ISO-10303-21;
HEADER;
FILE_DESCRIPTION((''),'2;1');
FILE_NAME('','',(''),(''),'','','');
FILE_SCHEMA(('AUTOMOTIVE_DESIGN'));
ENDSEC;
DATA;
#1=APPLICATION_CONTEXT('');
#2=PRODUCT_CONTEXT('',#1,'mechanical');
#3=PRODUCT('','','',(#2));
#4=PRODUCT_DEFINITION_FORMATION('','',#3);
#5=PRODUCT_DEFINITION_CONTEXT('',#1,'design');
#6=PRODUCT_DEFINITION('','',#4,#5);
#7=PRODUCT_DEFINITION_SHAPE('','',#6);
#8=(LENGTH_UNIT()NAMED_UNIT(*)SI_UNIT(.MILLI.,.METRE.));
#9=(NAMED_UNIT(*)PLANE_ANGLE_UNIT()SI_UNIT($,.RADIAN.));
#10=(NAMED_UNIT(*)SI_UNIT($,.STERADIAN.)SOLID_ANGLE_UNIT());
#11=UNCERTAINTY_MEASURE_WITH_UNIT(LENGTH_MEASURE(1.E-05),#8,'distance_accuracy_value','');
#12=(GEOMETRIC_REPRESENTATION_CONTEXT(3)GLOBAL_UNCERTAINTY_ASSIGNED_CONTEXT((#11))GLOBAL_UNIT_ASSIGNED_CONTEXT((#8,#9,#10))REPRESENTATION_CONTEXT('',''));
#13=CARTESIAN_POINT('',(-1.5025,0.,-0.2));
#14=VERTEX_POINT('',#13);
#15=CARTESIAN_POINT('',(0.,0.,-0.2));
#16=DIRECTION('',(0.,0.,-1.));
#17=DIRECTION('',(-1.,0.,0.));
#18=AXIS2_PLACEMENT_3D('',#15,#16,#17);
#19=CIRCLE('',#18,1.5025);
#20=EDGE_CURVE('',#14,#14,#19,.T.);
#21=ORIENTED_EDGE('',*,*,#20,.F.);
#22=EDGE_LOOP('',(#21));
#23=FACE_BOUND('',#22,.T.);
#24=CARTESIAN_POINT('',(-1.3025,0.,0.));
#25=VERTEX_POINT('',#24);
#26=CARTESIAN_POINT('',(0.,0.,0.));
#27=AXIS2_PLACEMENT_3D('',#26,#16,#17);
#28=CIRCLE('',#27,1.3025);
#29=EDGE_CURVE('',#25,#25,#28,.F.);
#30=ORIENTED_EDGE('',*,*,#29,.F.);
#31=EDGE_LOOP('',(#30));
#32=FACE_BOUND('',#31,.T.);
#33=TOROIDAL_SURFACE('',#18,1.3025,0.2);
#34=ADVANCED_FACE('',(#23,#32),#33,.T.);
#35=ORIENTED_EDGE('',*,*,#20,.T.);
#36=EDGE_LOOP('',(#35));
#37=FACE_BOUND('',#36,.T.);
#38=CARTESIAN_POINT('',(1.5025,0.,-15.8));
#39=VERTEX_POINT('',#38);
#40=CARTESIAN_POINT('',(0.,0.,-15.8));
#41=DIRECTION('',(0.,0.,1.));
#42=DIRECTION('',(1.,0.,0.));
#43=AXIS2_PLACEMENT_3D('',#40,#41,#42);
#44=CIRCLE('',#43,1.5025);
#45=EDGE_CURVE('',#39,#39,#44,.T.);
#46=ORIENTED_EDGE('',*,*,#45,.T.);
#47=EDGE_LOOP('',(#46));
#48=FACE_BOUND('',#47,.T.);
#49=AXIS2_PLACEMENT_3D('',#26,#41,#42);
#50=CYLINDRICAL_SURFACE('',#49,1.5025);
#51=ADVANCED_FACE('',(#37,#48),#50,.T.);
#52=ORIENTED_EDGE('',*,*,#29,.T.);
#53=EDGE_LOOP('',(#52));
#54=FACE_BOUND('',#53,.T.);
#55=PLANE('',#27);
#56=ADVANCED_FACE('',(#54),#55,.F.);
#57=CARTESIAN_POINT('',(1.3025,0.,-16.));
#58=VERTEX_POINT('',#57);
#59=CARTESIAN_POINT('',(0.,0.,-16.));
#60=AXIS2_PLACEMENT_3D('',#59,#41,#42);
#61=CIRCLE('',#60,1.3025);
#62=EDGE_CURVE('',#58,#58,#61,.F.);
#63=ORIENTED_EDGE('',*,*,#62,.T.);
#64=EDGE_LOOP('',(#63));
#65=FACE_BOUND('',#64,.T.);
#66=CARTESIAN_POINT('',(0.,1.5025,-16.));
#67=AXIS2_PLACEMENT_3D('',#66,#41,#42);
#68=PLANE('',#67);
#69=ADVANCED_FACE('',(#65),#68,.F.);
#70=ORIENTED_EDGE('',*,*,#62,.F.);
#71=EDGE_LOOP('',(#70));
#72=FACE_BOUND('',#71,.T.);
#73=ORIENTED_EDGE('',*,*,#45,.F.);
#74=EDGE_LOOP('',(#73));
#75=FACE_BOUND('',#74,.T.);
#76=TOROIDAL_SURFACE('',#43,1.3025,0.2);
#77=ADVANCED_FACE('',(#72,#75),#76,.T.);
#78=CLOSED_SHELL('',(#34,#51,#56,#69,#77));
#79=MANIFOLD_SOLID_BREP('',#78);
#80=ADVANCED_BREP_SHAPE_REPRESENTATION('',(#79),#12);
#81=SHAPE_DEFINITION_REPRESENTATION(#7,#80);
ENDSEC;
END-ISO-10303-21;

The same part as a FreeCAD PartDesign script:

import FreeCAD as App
import Part
import Sketcher
from FreeCAD import Vector


def edges_at(feature, points):
    """Names of the edges that pass closest to the given points."""
    edges = feature.Shape.Edges
    near = lambda p: min(range(len(edges)), key=lambda i: edges[i].distToShape(Part.Vertex(*p))[0])
    return sorted({f"Edge{near(p) + 1}" for p in points})


def add_polygon(sketch, points):
    """Adds a closed chain of lines whose ends are joined by coincident constraints."""
    first, n = sketch.GeometryCount, len(points)
    for a, b in zip(points, points[1:] + points[:1]):
        sketch.addGeometry(Part.LineSegment(App.Vector(*a, 0), App.Vector(*b, 0)), False)
    for i in range(n):
        sketch.addConstraint(Sketcher.Constraint("Coincident", first + i, 2, first + (i + 1) % n, 1))

doc = App.newDocument("Part")
body = doc.addObject("PartDesign::Body", "Body")

# Sketch on YZ plane
sketch1 = doc.addObject("Sketcher::SketchObject", "Sketch")
body.addObject(sketch1)
sketch1.AttachmentSupport = (doc.YZ_Plane, [""])
sketch1.MapMode = "FlatFace"
add_polygon(sketch1, [(1.5, 0), (0, 0), (0, -16), (1.5, -16)])  # lines 0-3
sketch1.addConstraint(Sketcher.Constraint("Horizontal", 0))
sketch1.addConstraint(Sketcher.Constraint("Vertical", 1))
sketch1.addConstraint(Sketcher.Constraint("Horizontal", 2))
sketch1.addConstraint(Sketcher.Constraint("Vertical", 3))
sketch1.addConstraint(Sketcher.Constraint("Coincident", 0, 2, -1, 1))
sketch1.addConstraint(Sketcher.Constraint("DistanceY", 1, 2, 1, 1, 16.0))
sketch1.addConstraint(Sketcher.Constraint("DistanceX", 0, 2, 0, 1, 1.5025))
revolution = doc.addObject("PartDesign::Revolution", "Revolution")
body.addObject(revolution)
revolution.Profile = sketch1
revolution.ReferenceAxis = (sketch1, ["V_Axis"])
revolution.Angle = 360
doc.recompute()

fillet = doc.addObject("PartDesign::Fillet", "Fillet")
body.addObject(fillet)
fillet.Base = (revolution, edges_at(revolution, [(-1.502, 0, -16)]))
fillet.Radius = 0.2
doc.recompute()

fillet2 = doc.addObject("PartDesign::Fillet", "Fillet001")
body.addObject(fillet2)
fillet2.Base = (fillet, edges_at(fillet, [(-1.502, 0, 0)]))
fillet2.Radius = 0.2

doc.recompute()
